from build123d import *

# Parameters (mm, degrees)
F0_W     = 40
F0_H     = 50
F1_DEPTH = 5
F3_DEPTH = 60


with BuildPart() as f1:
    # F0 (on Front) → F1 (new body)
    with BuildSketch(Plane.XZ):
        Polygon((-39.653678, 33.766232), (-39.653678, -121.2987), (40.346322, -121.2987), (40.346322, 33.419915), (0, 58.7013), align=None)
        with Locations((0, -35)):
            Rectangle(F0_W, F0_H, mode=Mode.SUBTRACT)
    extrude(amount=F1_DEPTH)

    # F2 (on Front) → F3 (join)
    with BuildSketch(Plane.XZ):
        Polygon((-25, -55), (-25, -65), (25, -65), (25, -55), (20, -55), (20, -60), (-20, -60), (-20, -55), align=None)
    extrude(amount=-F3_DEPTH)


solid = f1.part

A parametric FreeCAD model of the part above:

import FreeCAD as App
import Part
import Sketcher

V = App.Vector
Q = App.Units.Quantity


def add_polygon(sketch, points):
    """Adds a closed chain of lines whose ends are joined by coincident constraints."""
    first, n = sketch.GeometryCount, len(points)
    for a, b in zip(points, points[1:] + points[:1]):
        sketch.addGeometry(Part.LineSegment(App.Vector(*a, 0), App.Vector(*b, 0)), False)
    for i in range(n):
        sketch.addConstraint(Sketcher.Constraint("Coincident", first + i, 2, first + (i + 1) % n, 1))

doc = App.newDocument("Part")
params = doc.addObject("Spreadsheet::Sheet", "Params")
for row, (alias, value) in enumerate([
    ("sketch1_width", "80 mm"),
    ("sketch1_width2", "40 mm"),
    ("sketch1_height", "50 mm"),
    ("pad1_length", "5 mm"),
    ("sketch2_width", "50 mm"),
    ("sketch2_width2", "5 mm"),
    ("sketch2_height", "10 mm"),
    ("pad2_length", "60 mm"),
], start=1):
    params.set(f"A{row}", alias)
    params.set(f"B{row}", "=" + value)
    params.setAlias(f"B{row}", alias)

body = doc.addObject("PartDesign::Body", "Body")

# Sketch on XZ plane
sketch1 = body.newObject("Sketcher::SketchObject", "Sketch")
sketch1.AttachmentSupport = (doc.getObject("XZ_Plane"), [""])
sketch1.MapMode = "FlatFace"
add_polygon(sketch1, [(-40, 34), (-40, -121), (40, -121), (40, 33), (0, 59)])  # lines 0-4
add_polygon(sketch1, [(20, -60), (-20, -60), (-20, -10), (20, -10)])  # lines 5-8
sketch1.addConstraint([
    Sketcher.Constraint("Vertical", 0),
    Sketcher.Constraint("Horizontal", 1),
    Sketcher.Constraint("Vertical", 2),
    Sketcher.Constraint("Horizontal", 5),
    Sketcher.Constraint("Vertical", 6),
    Sketcher.Constraint("Horizontal", 7),
    Sketcher.Constraint("Vertical", 8),
    Sketcher.Constraint("PointOnObject", 3, 2, -2),
    Sketcher.Constraint("DistanceX", 1, 1, 1, 2, Q("80 mm")),
    Sketcher.Constraint("DistanceX", 5, 2, 5, 1, Q("40 mm")),
    Sketcher.Constraint("DistanceY", 6, 1, 6, 2, Q("50 mm")),
    Sketcher.Constraint("DistanceX", 5, 2, -1, 1, Q("20 mm")),
    Sketcher.Constraint("DistanceY", 5, 2, -1, 1, Q("60 mm")),
    Sketcher.Constraint("DistanceY", 0, 2, 3, 2, Q("180 mm")),
    Sketcher.Constraint("DistanceY", 0, 2, 0, 1, Q("155.064932 mm")),
    Sketcher.Constraint("DistanceY", 0, 2, -1, 1, Q("121.2987 mm")),
    Sketcher.Constraint("Distance", 3, Q("47.612752 mm")),
    Sketcher.Constraint("DistanceY", 2, 1, 2, 2, Q("154.718615 mm")),
])
sketch1.setExpression("Constraints[17]", "Params.sketch1_width")
sketch1.setExpression("Constraints[18]", "Params.sketch1_width2")
sketch1.setExpression("Constraints[19]", "Params.sketch1_height")
pad1 = body.newObject("PartDesign::Pad", "Pad")
pad1.Profile = sketch1
pad1.setExpression("Length", "Params.pad1_length")

# Sketch on XZ plane
sketch2 = body.newObject("Sketcher::SketchObject", "Sketch001")
sketch2.AttachmentSupport = (doc.getObject("XZ_Plane"), [""])
sketch2.MapMode = "FlatFace"
add_polygon(sketch2, [(-25, -55), (-25, -65), (25, -65), (25, -55), (20, -55), (20, -60), (-20, -60), (-20, -55)])  # lines 0-7
sketch2.addConstraint([
    Sketcher.Constraint("Vertical", 0),
    Sketcher.Constraint("Horizontal", 1),
    Sketcher.Constraint("Vertical", 2),
    Sketcher.Constraint("Horizontal", 3),
    Sketcher.Constraint("Vertical", 4),
    Sketcher.Constraint("Horizontal", 5),
    Sketcher.Constraint("Vertical", 6),
    Sketcher.Constraint("Horizontal", 7),
    Sketcher.Constraint("Symmetric", 3, 2, 6, 2, -2),
    Sketcher.Constraint("Equal", 3, 7),
    Sketcher.Constraint("Equal", 7, 4),
    Sketcher.Constraint("DistanceX", 1, 1, 1, 2, Q("50 mm")),
    Sketcher.Constraint("DistanceX", 3, 2, 3, 1, Q("5 mm")),
    Sketcher.Constraint("DistanceY", 0, 2, 0, 1, Q("10 mm")),
    Sketcher.Constraint("DistanceY", 0, 2, -1, 1, Q("65 mm")),
])
sketch2.setExpression("Constraints[19]", "Params.sketch2_width")
sketch2.setExpression("Constraints[20]", "Params.sketch2_width2")
sketch2.setExpression("Constraints[21]", "Params.sketch2_height")
pad2 = body.newObject("PartDesign::Pad", "Pad001")
pad2.Profile = sketch2
pad2.setExpression("Length", "Params.pad2_length")
pad2.Reversed = True

doc.recompute()
